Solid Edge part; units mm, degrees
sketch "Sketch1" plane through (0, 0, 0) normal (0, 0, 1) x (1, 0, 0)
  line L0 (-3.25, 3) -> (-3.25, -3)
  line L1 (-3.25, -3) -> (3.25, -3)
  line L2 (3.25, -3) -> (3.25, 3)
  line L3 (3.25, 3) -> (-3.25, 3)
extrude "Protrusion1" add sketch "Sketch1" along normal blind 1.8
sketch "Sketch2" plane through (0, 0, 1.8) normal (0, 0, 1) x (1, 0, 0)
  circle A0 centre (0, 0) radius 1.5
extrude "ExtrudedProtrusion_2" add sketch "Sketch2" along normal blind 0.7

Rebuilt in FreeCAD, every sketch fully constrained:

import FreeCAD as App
import Part
import Sketcher

V = App.Vector
Q = App.Units.Quantity


def add_polygon(sketch, points):
    """Adds a closed chain of lines whose ends are joined by coincident constraints."""
    first, n = sketch.GeometryCount, len(points)
    for a, b in zip(points, points[1:] + points[:1]):
        sketch.addGeometry(Part.LineSegment(App.Vector(*a, 0), App.Vector(*b, 0)), False)
    for i in range(n):
        sketch.addConstraint(Sketcher.Constraint("Coincident", first + i, 2, first + (i + 1) % n, 1))

doc = App.newDocument("Part")
params = doc.addObject("Spreadsheet::Sheet", "Params")
for row, (alias, value) in enumerate([
    ("sketch1_height", "6 mm"),
    ("sketch1_width", "6.5 mm"),
    ("pad1_length", "1.8 mm"),
    ("sketch2_diameter", "3 mm"),
    ("pad2_length", "0.7 mm"),
], start=1):
    params.set(f"A{row}", alias)
    params.set(f"B{row}", "=" + value)
    params.setAlias(f"B{row}", alias)

body = doc.addObject("PartDesign::Body", "Body")

sketch1 = body.newObject("Sketcher::SketchObject", "Sketch")
sketch1.AttachmentSupport = (doc.getObject("XY_Plane"), [""])
sketch1.MapMode = "FlatFace"
add_polygon(sketch1, [(3, 3), (-3, 3), (-3, -3), (3, -3)])
sketch1.addConstraint([
    Sketcher.Constraint("Horizontal", 0),
    Sketcher.Constraint("Vertical", 1),
    Sketcher.Constraint("Horizontal", 2),
    Sketcher.Constraint("Vertical", 3),
    Sketcher.Constraint("Symmetric", 0, 2, 2, 2, -1, 1),
    Sketcher.Constraint("DistanceY", 1, 2, 1, 1, Q("6 mm")),
    Sketcher.Constraint("DistanceX", 0, 2, 0, 1, Q("6.5 mm")),
])
sketch1.setExpression("Constraints[9]", "Params.sketch1_height")
sketch1.setExpression("Constraints[10]", "Params.sketch1_width")
pad1 = body.newObject("PartDesign::Pad", "Pad")
pad1.Profile = sketch1
pad1.setExpression("Length", "Params.pad1_length")

sketch2 = body.newObject("Sketcher::SketchObject", "Sketch001")
sketch2.AttachmentSupport = (doc.getObject("XY_Plane"), [""])
sketch2.MapMode = "FlatFace"
sketch2.AttachmentOffset = App.Placement(V(0, 0, 1.8), App.Rotation())
sketch2.addGeometry(Part.Circle(V(0, 0, 0), V(0, 0, 1), 1.5), False)
sketch2.addConstraint([
    Sketcher.Constraint("Coincident", 0, 3, -1, 1),
    Sketcher.Constraint("Diameter", 0, Q("3 mm")),
])
sketch2.setExpression("Constraints[1]", "Params.sketch2_diameter")
pad2 = body.newObject("PartDesign::Pad", "Pad001")
pad2.Profile = sketch2
pad2.setExpression("Length", "Params.pad2_length")

doc.recompute()
